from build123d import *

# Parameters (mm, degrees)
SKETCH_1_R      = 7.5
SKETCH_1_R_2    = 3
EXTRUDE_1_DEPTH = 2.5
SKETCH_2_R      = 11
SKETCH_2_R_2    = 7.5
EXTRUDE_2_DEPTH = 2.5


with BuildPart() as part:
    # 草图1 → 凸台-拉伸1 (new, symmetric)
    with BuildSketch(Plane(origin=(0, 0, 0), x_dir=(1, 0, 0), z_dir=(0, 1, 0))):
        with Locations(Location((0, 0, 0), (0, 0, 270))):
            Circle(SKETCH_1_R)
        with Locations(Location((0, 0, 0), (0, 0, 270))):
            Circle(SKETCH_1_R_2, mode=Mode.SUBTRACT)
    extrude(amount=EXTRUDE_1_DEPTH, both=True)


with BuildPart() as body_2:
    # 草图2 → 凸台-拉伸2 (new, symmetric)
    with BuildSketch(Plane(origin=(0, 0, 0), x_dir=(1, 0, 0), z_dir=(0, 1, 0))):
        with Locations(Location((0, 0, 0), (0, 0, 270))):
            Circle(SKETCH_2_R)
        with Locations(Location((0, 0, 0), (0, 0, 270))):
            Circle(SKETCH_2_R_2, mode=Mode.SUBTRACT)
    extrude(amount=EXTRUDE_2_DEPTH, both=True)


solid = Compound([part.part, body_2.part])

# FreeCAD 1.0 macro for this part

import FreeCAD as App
import Part
import Sketcher

V = App.Vector

doc = App.newDocument("Part")
body = doc.addObject("PartDesign::Body", "Body")

sketch1 = body.newObject("Sketcher::SketchObject", "Sketch")
sketch1.AttachmentSupport = (doc.getObject("XZ_Plane"), [""])
sketch1.MapMode = "FlatFace"
sketch1.addGeometry([
    Part.Circle(V(0, 0, 0), V(0, 0, 1), 7.5),
    Part.Circle(V(0, 0, 0), V(0, 0, 1), 3),
], False)
sketch1.addConstraint([
    Sketcher.Constraint("Coincident", 0, 3, -1, 1),
    Sketcher.Constraint("Coincident", 1, 3, -1, 1),
    Sketcher.Constraint("Diameter", 0, 15.0),
    Sketcher.Constraint("Diameter", 1, 6.0),
])
pad1 = body.newObject("PartDesign::Pad", "Pad")
pad1.Profile = sketch1
pad1.Length = 5
pad1.Midplane = True
body2 = doc.addObject("PartDesign::Body", "Body001")

sketch2 = body2.newObject("Sketcher::SketchObject", "Sketch001")
sketch2.AttachmentSupport = (doc.getObject("XZ_Plane001"), [""])
sketch2.MapMode = "FlatFace"
sketch2.addGeometry([
    Part.Circle(V(0, 0, 0), V(0, 0, 1), 11),
    Part.Circle(V(0, 0, 0), V(0, 0, 1), 8),
], False)
sketch2.addConstraint([
    Sketcher.Constraint("Coincident", 0, 3, -1, 1),
    Sketcher.Constraint("Coincident", 1, 3, -1, 1),
    Sketcher.Constraint("Diameter", 0, 22.0),
    Sketcher.Constraint("Diameter", 1, 15.0),
])
pad2 = body2.newObject("PartDesign::Pad", "Pad001")
pad2.Profile = sketch2
pad2.Length = 5
pad2.Midplane = True

doc.recompute()
